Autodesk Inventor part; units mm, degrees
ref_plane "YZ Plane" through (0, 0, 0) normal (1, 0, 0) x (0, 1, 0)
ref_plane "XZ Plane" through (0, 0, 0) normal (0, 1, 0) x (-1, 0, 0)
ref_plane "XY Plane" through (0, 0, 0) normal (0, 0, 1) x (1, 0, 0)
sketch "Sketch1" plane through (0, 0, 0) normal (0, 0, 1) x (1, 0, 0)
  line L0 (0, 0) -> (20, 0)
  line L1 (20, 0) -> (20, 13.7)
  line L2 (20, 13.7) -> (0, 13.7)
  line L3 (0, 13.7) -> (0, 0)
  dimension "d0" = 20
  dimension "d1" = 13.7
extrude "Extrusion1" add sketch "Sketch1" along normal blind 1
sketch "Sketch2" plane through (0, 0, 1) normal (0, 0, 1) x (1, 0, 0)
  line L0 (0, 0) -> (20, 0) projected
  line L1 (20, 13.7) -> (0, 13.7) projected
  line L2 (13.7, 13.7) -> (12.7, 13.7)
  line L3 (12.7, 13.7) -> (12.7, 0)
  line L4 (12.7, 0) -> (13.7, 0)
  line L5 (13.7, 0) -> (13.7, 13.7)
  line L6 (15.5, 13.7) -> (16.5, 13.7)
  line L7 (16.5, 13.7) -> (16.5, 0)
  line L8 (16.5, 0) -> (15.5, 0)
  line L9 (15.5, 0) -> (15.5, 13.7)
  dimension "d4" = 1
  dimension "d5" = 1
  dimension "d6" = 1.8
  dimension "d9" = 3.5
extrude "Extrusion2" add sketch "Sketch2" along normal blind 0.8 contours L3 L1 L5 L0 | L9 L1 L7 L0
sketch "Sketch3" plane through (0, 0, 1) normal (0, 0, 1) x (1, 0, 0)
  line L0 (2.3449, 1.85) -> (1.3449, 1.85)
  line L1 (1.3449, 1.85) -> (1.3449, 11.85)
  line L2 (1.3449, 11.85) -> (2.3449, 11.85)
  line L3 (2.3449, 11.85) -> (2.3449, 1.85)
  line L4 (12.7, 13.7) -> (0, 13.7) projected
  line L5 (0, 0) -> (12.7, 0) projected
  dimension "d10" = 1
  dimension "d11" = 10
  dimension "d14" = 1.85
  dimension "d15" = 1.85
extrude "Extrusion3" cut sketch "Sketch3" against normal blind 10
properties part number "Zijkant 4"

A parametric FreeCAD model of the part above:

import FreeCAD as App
import Part
import Sketcher
Q = App.Units.Quantity


def add_polygon(sketch, points):
    """Adds a closed chain of lines whose ends are joined by coincident constraints."""
    first, n = sketch.GeometryCount, len(points)
    for a, b in zip(points, points[1:] + points[:1]):
        sketch.addGeometry(Part.LineSegment(App.Vector(*a, 0), App.Vector(*b, 0)), False)
    for i in range(n):
        sketch.addConstraint(Sketcher.Constraint("Coincident", first + i, 2, first + (i + 1) % n, 1))

doc = App.newDocument("Part")
params = doc.addObject("Spreadsheet::Sheet", "Params")
for row, (alias, value) in enumerate([
    ("sketch1_width", "20 mm"),
    ("sketch1_height", "13.7 mm"),
    ("pad1_length", "1 mm"),
    ("sketch2_width", "1 mm"),
    ("sketch2_height", "13.7 mm"),
    ("pad2_length", "0.8 mm"),
    ("sketch3_width", "1 mm"),
    ("sketch3_height", "10 mm"),
    ("pocket1_length", "10 mm"),
], start=1):
    params.set(f"A{row}", alias)
    params.set(f"B{row}", "=" + value)
    params.setAlias(f"B{row}", alias)

body = doc.addObject("PartDesign::Body", "Body")

sketch1 = body.newObject("Sketcher::SketchObject", "Sketch")
sketch1.AttachmentSupport = (doc.getObject("XY_Plane"), [""])
sketch1.MapMode = "FlatFace"
add_polygon(sketch1, [(0, 14), (0, 0), (20, 0), (20, 14)])
sketch1.addConstraint([
    Sketcher.Constraint("Vertical", 0),
    Sketcher.Constraint("Horizontal", 1),
    Sketcher.Constraint("Vertical", 2),
    Sketcher.Constraint("Horizontal", 3),
    Sketcher.Constraint("Coincident", 0, 2, -1, 1),
    Sketcher.Constraint("DistanceX", 1, 1, 1, 2, Q("20 mm")),
    Sketcher.Constraint("DistanceY", 0, 2, 0, 1, Q("13.7 mm")),
])
sketch1.setExpression("Constraints[9]", "Params.sketch1_width")
sketch1.setExpression("Constraints[10]", "Params.sketch1_height")
pad1 = body.newObject("PartDesign::Pad", "Pad")
pad1.Profile = sketch1
pad1.setExpression("Length", "Params.pad1_length")

sketch2 = body.newObject("Sketcher::SketchObject", "Sketch001")
sketch2.AttachmentSupport = (doc.getObject("XY_Plane"), [""])
sketch2.MapMode = "FlatFace"
sketch2.AttachmentOffset = App.Placement(App.Vector(0, 0, 1), App.Rotation())
add_polygon(sketch2, [(12.7, 13.7), (12.7, 0), (13.7, 0), (13.7, 13.7)])
add_polygon(sketch2, [(15.5, 13.7), (15.5, 0), (16.5, 0), (16.5, 13.7)])
sketch2.addConstraint([
    Sketcher.Constraint("Vertical", 0),
    Sketcher.Constraint("Horizontal", 1),
    Sketcher.Constraint("Vertical", 2),
    Sketcher.Constraint("Horizontal", 3),
    Sketcher.Constraint("Vertical", 4),
    Sketcher.Constraint("Horizontal", 5),
    Sketcher.Constraint("Vertical", 6),
    Sketcher.Constraint("Horizontal", 7),
    Sketcher.Constraint("PointOnObject", 0, 2, -1),
    Sketcher.Constraint("PointOnObject", 4, 2, -1),
    Sketcher.Constraint("Horizontal", 3, 2, 6, 2),
    Sketcher.Constraint("Equal", 3, 5),
    Sketcher.Constraint("DistanceX", 1, 1, 1, 2, Q("1 mm")),
    Sketcher.Constraint("DistanceX", 1, 2, 4, 2, Q("1.8 mm")),
    Sketcher.Constraint("DistanceY", 0, 2, 0, 1, Q("13.7 mm")),
    Sketcher.Constraint("DistanceX", -1, 1, 0, 2, Q("12.7 mm")),
])
sketch2.setExpression("Constraints[20]", "Params.sketch2_width")
sketch2.setExpression("Constraints[22]", "Params.sketch2_height")
pad2 = body.newObject("PartDesign::Pad", "Pad001")
pad2.Profile = sketch2
pad2.setExpression("Length", "Params.pad2_length")

sketch3 = body.newObject("Sketcher::SketchObject", "Sketch002")
sketch3.AttachmentSupport = (doc.getObject("XY_Plane"), [""])
sketch3.MapMode = "FlatFace"
sketch3.AttachmentOffset = App.Placement(App.Vector(0, 0, 1), App.Rotation())
add_polygon(sketch3, [(1.3, 1.9), (2.3, 1.9), (2.3, 11.8), (1.3, 11.8)])
sketch3.addConstraint([
    Sketcher.Constraint("Horizontal", 0),
    Sketcher.Constraint("Vertical", 1),
    Sketcher.Constraint("Horizontal", 2),
    Sketcher.Constraint("Vertical", 3),
    Sketcher.Constraint("DistanceX", 0, 1, 0, 2, Q("1 mm")),
    Sketcher.Constraint("DistanceY", 1, 1, 1, 2, Q("10 mm")),
    Sketcher.Constraint("DistanceY", -1, 1, 0, 2, Q("1.85 mm")),
    Sketcher.Constraint("DistanceX", -1, 1, 0, 2, Q("2.345 mm")),
])
sketch3.setExpression("Constraints[8]", "Params.sketch3_width")
sketch3.setExpression("Constraints[9]", "Params.sketch3_height")
pocket1 = body.newObject("PartDesign::Pocket", "Pocket")
pocket1.Profile = sketch3
pocket1.setExpression("Length", "Params.pocket1_length")

doc.recompute()
